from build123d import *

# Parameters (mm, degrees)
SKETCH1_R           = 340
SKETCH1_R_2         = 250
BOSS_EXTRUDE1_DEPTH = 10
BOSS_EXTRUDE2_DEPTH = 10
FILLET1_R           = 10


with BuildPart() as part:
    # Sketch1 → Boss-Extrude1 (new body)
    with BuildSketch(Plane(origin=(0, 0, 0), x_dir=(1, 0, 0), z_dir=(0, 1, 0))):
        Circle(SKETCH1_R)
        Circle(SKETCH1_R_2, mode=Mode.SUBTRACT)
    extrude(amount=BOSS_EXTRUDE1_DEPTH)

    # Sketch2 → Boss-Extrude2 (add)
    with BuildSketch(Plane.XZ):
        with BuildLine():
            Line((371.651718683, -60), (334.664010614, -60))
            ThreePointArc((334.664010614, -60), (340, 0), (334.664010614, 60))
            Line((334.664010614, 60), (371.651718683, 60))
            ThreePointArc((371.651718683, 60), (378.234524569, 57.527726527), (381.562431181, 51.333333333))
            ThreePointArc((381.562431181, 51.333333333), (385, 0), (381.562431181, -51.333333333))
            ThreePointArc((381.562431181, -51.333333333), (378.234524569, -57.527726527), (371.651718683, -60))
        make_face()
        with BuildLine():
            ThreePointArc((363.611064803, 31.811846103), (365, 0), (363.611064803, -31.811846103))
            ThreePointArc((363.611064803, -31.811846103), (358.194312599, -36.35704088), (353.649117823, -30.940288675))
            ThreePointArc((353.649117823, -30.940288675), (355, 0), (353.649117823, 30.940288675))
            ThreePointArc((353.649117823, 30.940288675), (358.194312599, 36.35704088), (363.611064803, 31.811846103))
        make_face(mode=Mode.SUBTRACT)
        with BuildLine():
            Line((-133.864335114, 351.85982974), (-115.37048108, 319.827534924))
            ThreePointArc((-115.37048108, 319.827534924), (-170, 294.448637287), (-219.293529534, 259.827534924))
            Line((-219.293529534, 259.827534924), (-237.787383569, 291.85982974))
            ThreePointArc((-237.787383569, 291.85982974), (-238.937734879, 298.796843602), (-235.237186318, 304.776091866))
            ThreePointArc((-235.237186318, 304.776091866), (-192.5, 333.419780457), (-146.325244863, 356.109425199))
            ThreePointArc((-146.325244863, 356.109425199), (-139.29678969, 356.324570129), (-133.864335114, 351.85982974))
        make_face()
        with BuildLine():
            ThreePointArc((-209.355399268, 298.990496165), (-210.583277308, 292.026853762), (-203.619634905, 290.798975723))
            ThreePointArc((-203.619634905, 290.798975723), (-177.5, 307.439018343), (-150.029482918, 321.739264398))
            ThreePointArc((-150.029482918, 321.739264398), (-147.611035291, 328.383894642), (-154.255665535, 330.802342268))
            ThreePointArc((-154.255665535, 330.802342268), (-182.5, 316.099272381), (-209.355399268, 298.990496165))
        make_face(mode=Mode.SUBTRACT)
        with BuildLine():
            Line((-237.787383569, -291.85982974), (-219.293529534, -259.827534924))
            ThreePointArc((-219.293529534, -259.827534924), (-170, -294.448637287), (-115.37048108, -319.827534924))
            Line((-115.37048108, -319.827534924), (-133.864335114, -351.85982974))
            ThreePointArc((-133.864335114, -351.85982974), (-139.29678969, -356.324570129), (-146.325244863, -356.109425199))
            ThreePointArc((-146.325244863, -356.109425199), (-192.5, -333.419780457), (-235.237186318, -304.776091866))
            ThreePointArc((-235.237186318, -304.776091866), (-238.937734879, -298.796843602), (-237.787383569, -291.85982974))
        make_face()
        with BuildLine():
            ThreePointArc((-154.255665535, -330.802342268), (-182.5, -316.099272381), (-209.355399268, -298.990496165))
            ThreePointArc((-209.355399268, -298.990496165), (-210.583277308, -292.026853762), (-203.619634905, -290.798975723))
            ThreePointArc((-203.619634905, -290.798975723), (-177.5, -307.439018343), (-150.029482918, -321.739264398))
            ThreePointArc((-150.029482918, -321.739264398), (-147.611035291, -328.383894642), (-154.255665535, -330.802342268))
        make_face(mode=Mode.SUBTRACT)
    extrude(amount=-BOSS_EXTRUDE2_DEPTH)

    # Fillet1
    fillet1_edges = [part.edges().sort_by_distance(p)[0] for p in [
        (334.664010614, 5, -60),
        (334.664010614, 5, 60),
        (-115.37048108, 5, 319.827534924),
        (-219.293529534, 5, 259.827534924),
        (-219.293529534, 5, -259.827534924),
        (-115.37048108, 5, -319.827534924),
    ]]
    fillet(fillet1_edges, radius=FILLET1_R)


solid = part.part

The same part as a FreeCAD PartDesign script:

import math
import FreeCAD as App
import Part
import Sketcher
from FreeCAD import Vector
Q = App.Units.Quantity


def edges_at(feature, points):
    """Names of the edges that pass closest to the given points."""
    edges = feature.Shape.Edges
    near = lambda p: min(range(len(edges)), key=lambda i: edges[i].distToShape(Part.Vertex(*p))[0])
    return sorted({f"Edge{near(p) + 1}" for p in points})

doc = App.newDocument("Part")
params = doc.addObject("Spreadsheet::Sheet", "Params")
for row, (alias, value) in enumerate([
    ("sketch1_diameter", "680 mm"),
    ("sketch1_diameter2", "500 mm"),
    ("pad1_length", "10 mm"),
    ("sketch2_radius", "10 mm"),
    ("sketch2_radius2", "385 mm"),
    ("sketch2_radius3", "340 mm"),
    ("sketch2_radius4", "365 mm"),
    ("sketch2_radius5", "5 mm"),
    ("pad2_length", "10 mm"),
    ("fillet_radius", "10 mm"),
], start=1):
    params.set(f"A{row}", alias)
    params.set(f"B{row}", "=" + value)
    params.setAlias(f"B{row}", alias)

body = doc.addObject("PartDesign::Body", "Body")

# Sketch on XZ plane
sketch1 = doc.addObject("Sketcher::SketchObject", "Sketch")
body.addObject(sketch1)
sketch1.AttachmentSupport = (doc.XZ_Plane, [""])
sketch1.MapMode = "FlatFace"
sketch1.addGeometry([
    Part.Circle(Vector(0, 0, 0), Vector(0, 0, 1), 340),
    Part.Circle(Vector(0, 0, 0), Vector(0, 0, 1), 250),
], False)
sketch1.addConstraint([
    Sketcher.Constraint("Coincident", 0, 3, -1, 1),
    Sketcher.Constraint("Coincident", 1, 3, -1, 1),
    Sketcher.Constraint("Diameter", 0, Q("680 mm")),
    Sketcher.Constraint("Diameter", 1, Q("500 mm")),
])
sketch1.setExpression("Constraints[2]", "Params.sketch1_diameter")
sketch1.setExpression("Constraints[3]", "Params.sketch1_diameter2")
pad1 = doc.addObject("PartDesign::Pad", "Pad")
body.addObject(pad1)
pad1.Profile = sketch1
pad1.setExpression("Length", "Params.pad1_length")
pad1.Reversed = True

# Sketch on XZ plane
sketch2 = doc.addObject("Sketcher::SketchObject", "Sketch001")
body.addObject(sketch2)
sketch2.AttachmentSupport = (doc.XZ_Plane, [""])
sketch2.MapMode = "FlatFace"
sketch2.addGeometry([
    Part.LineSegment(Vector(334.664011, -60, 0), Vector(371.651719, -60, 0)),  # 0
    Part.ArcOfCircle(Part.Circle(Vector(371.651719, -50, 0), Vector(0, 0, 1), 10), math.radians(-90), math.radians(-7.662256)),  # 1
    Part.ArcOfCircle(Part.Circle(Vector(0, 0, 0), Vector(0, 0, 1), 385), math.radians(-7.662256), math.radians(7.662256)),  # 2
    Part.ArcOfCircle(Part.Circle(Vector(371.651719, 50, 0), Vector(0, 0, 1), 10), math.radians(7.662256), math.radians(90)),  # 3
    Part.LineSegment(Vector(371.651719, 60, 0), Vector(334.664011, 60, 0)),  # 4
    Part.ArcOfCircle(Part.Circle(Vector(0, 0, 0), Vector(0, 0, 1), 340), math.radians(-10.164249), math.radians(10.164249)),  # 5
    Part.ArcOfCircle(Part.Circle(Vector(0, 0, 0), Vector(0, 0, 1), 365), math.radians(-5), math.radians(5)),  # 6
    Part.ArcOfCircle(Part.Circle(Vector(358.630091, -31.376067, 0), Vector(0, 0, 1), 5), math.radians(175), math.radians(355)),  # 7
    Part.ArcOfCircle(Part.Circle(Vector(0, 0, 0), Vector(0, 0, 1), 355), math.radians(-5), math.radians(5)),  # 8
    Part.ArcOfCircle(Part.Circle(Vector(358.630091, 31.376067, 0), Vector(0, 0, 1), 5), math.radians(5), math.radians(185)),  # 9
    Part.LineSegment(Vector(-115.370481, 319.827535, 0), Vector(-133.864335, 351.85983, 0)),  # 10
    Part.ArcOfCircle(Part.Circle(Vector(-142.524589, 346.85983, 0), Vector(0, 0, 1), 10), math.radians(30), math.radians(112.337744)),  # 11
    Part.ArcOfCircle(Part.Circle(Vector(0, 0, 0), Vector(0, 0, 1), 385), math.radians(112.337744), math.radians(127.662256)),  # 12
    Part.ArcOfCircle(Part.Circle(Vector(-229.12713, 296.85983, 0), Vector(0, 0, 1), 10), math.radians(127.662256), math.radians(210)),  # 13
    Part.LineSegment(Vector(-237.787384, 291.85983, 0), Vector(-219.29353, 259.827535, 0)),  # 14
    Part.ArcOfCircle(Part.Circle(Vector(0, 0, 0), Vector(0, 0, 1), 340), math.radians(109.835751), math.radians(130.164249)),  # 15
    Part.ArcOfCircle(Part.Circle(Vector(0, 0, 0), Vector(0, 0, 1), 365), math.radians(115), math.radians(125)),  # 16
    Part.ArcOfCircle(Part.Circle(Vector(-152.142574, 326.270803, 0), Vector(0, 0, 1), 5), math.radians(-65), math.radians(115)),  # 17
    Part.ArcOfCircle(Part.Circle(Vector(0, 0, 0), Vector(0, 0, 1), 355), math.radians(115), math.radians(125)),  # 18
    Part.ArcOfCircle(Part.Circle(Vector(-206.487517, 294.894736, 0), Vector(0, 0, 1), 5), math.radians(125), math.radians(305)),  # 19
    Part.LineSegment(Vector(-219.29353, -259.827535, 0), Vector(-237.787384, -291.85983, 0)),  # 20
    Part.ArcOfCircle(Part.Circle(Vector(-229.12713, -296.85983, 0), Vector(0, 0, 1), 10), math.radians(150), math.radians(232.337744)),  # 21
    Part.ArcOfCircle(Part.Circle(Vector(0, 0, 0), Vector(0, 0, 1), 385), math.radians(-127.662256), math.radians(-112.337744)),  # 22
    Part.ArcOfCircle(Part.Circle(Vector(-142.524589, -346.85983, 0), Vector(0, 0, 1), 10), math.radians(-112.337744), math.radians(-30)),  # 23
    Part.LineSegment(Vector(-133.864335, -351.85983, 0), Vector(-115.370481, -319.827535, 0)),  # 24
    Part.ArcOfCircle(Part.Circle(Vector(0, 0, 0), Vector(0, 0, 1), 340), math.radians(-130.164249), math.radians(-109.835751)),  # 25
    Part.ArcOfCircle(Part.Circle(Vector(0, 0, 0), Vector(0, 0, 1), 365), math.radians(-125), math.radians(-115)),  # 26
    Part.ArcOfCircle(Part.Circle(Vector(-206.487517, -294.894736, 0), Vector(0, 0, 1), 5), math.radians(55), math.radians(235)),  # 27
    Part.ArcOfCircle(Part.Circle(Vector(0, 0, 0), Vector(0, 0, 1), 355), math.radians(-125), math.radians(-115)),  # 28
    Part.ArcOfCircle(Part.Circle(Vector(-152.142574, -326.270803, 0), Vector(0, 0, 1), 5), math.radians(-115), math.radians(65)),  # 29
], False)
sketch2.addConstraint([
    Sketcher.Constraint("Tangent", 0, 2, 1, 1),
    Sketcher.Constraint("Tangent", 1, 2, 2, 1),
    Sketcher.Constraint("Tangent", 2, 2, 3, 1),
    Sketcher.Constraint("Tangent", 3, 2, 4, 1),
    Sketcher.Constraint("Coincident", 4, 2, 5, 2),
    Sketcher.Constraint("Coincident", 5, 1, 0, 1),
    Sketcher.Constraint("Tangent", 6, 1, 7, 2),
    Sketcher.Constraint("Tangent", 7, 1, 8, 1),
    Sketcher.Constraint("Tangent", 8, 2, 9, 2),
    Sketcher.Constraint("Tangent", 9, 1, 6, 2),
    Sketcher.Constraint("Tangent", 10, 2, 11, 1),
    Sketcher.Constraint("Tangent", 11, 2, 12, 1),
    Sketcher.Constraint("Tangent", 12, 2, 13, 1),
    Sketcher.Constraint("Tangent", 13, 2, 14, 1),
    Sketcher.Constraint("Coincident", 14, 2, 15, 2),
    Sketcher.Constraint("Coincident", 15, 1, 10, 1),
    Sketcher.Constraint("Tangent", 16, 1, 17, 2),
    Sketcher.Constraint("Tangent", 17, 1, 18, 1),
    Sketcher.Constraint("Tangent", 18, 2, 19, 2),
    Sketcher.Constraint("Tangent", 19, 1, 16, 2),
    Sketcher.Constraint("Tangent", 20, 2, 21, 1),
    Sketcher.Constraint("Tangent", 21, 2, 22, 1),
    Sketcher.Constraint("Tangent", 22, 2, 23, 1),
    Sketcher.Constraint("Tangent", 23, 2, 24, 1),
    Sketcher.Constraint("Coincident", 24, 2, 25, 2),
    Sketcher.Constraint("Coincident", 25, 1, 20, 1),
    Sketcher.Constraint("Tangent", 26, 1, 27, 2),
    Sketcher.Constraint("Tangent", 27, 1, 28, 1),
    Sketcher.Constraint("Tangent", 28, 2, 29, 2),
    Sketcher.Constraint("Tangent", 29, 1, 26, 2),
    Sketcher.Constraint("Horizontal", 0),
    Sketcher.Constraint("Horizontal", 4),
    Sketcher.Constraint("Coincident", 2, 3, -1, 1),
    Sketcher.Constraint("Coincident", 5, 3, -1, 1),
    Sketcher.Constraint("Coincident", 6, 3, -1, 1),
    Sketcher.Constraint("Coincident", 8, 3, -1, 1),
    Sketcher.Constraint("Coincident", 12, 3, -1, 1),
    Sketcher.Constraint("Coincident", 15, 3, -1, 1),
    Sketcher.Constraint("Coincident", 16, 3, -1, 1),
    Sketcher.Constraint("Coincident", 18, 3, -1, 1),
    Sketcher.Constraint("Coincident", 22, 3, -1, 1),
    Sketcher.Constraint("Coincident", 25, 3, -1, 1),
    Sketcher.Constraint("Coincident", 26, 3, -1, 1),
    Sketcher.Constraint("Coincident", 28, 3, -1, 1),
    Sketcher.Constraint("Equal", 1, 3),
    Sketcher.Constraint("Equal", 3, 11),
    Sketcher.Constraint("Equal", 2, 12),
    Sketcher.Constraint("Equal", 11, 13),
    Sketcher.Constraint("Equal", 5, 15),
    Sketcher.Constraint("Equal", 6, 16),
    Sketcher.Constraint("Equal", 9, 17),
    Sketcher.Constraint("Equal", 13, 21),
    Sketcher.Constraint("Equal", 12, 22),
    Sketcher.Constraint("Equal", 21, 23),
    Sketcher.Constraint("Equal", 15, 25),
    Sketcher.Constraint("Equal", 16, 26),
    Sketcher.Constraint("Equal", 19, 27),
    Sketcher.Constraint("Symmetric", 13, 2, 20, 2, -1),
    Sketcher.Constraint("Symmetric", 10, 2, 23, 2, -1),
    Sketcher.Constraint("Parallel", 10, 14),
    Sketcher.Constraint("Vertical", 1, 3, 3, 3),
    Sketcher.Constraint("Vertical", 7, 3, 9, 3),
    Sketcher.Constraint("Vertical", 19, 3, 27, 3),
    Sketcher.Constraint("Vertical", 17, 3, 29, 3),
    Sketcher.Constraint("Equal", 10, 14),
    Sketcher.Constraint("Radius", 1, Q("10 mm")),
    Sketcher.Constraint("Radius", 2, Q("385 mm")),
    Sketcher.Constraint("Radius", 5, Q("340 mm")),
    Sketcher.Constraint("Radius", 6, Q("365 mm")),
    Sketcher.Constraint("Radius", 7, Q("5 mm")),
    Sketcher.Constraint("Angle", 10, Q("120 deg")),
    Sketcher.Constraint("DistanceY", 1, 3, -1, 1, Q("50 mm")),
    Sketcher.Constraint("DistanceY", 13, 3, 11, 3, Q("50 mm")),
    Sketcher.Constraint("DistanceX", 19, 1, -1, 1, Q("209.355399 mm")),
    Sketcher.Constraint("DistanceY", 1, 2, 9, 3, Q("82.709401 mm")),
    Sketcher.Constraint("DistanceX", 17, 3, 10, 2, Q("18.278239 mm")),
])
sketch2.setExpression("Constraints[65]", "Params.sketch2_radius")
sketch2.setExpression("Constraints[66]", "Params.sketch2_radius2")
sketch2.setExpression("Constraints[67]", "Params.sketch2_radius3")
sketch2.setExpression("Constraints[68]", "Params.sketch2_radius4")
sketch2.setExpression("Constraints[69]", "Params.sketch2_radius5")
pad2 = doc.addObject("PartDesign::Pad", "Pad001")
body.addObject(pad2)
pad2.Profile = sketch2
pad2.setExpression("Length", "Params.pad2_length")
pad2.Reversed = True
doc.recompute()

fillet = doc.addObject("PartDesign::Fillet", "Fillet")
body.addObject(fillet)
fillet.Base = (pad2, edges_at(pad2, [
    (334.664, 5, -60),
    (334.664, 5, 60),
    (-115.37, 5, 319.828),
    (-219.294, 5, 259.828),
    (-219.294, 5, -259.828),
    (-115.37, 5, -319.828),
]))
fillet.setExpression("Radius", "Params.fillet_radius")

doc.recompute()
